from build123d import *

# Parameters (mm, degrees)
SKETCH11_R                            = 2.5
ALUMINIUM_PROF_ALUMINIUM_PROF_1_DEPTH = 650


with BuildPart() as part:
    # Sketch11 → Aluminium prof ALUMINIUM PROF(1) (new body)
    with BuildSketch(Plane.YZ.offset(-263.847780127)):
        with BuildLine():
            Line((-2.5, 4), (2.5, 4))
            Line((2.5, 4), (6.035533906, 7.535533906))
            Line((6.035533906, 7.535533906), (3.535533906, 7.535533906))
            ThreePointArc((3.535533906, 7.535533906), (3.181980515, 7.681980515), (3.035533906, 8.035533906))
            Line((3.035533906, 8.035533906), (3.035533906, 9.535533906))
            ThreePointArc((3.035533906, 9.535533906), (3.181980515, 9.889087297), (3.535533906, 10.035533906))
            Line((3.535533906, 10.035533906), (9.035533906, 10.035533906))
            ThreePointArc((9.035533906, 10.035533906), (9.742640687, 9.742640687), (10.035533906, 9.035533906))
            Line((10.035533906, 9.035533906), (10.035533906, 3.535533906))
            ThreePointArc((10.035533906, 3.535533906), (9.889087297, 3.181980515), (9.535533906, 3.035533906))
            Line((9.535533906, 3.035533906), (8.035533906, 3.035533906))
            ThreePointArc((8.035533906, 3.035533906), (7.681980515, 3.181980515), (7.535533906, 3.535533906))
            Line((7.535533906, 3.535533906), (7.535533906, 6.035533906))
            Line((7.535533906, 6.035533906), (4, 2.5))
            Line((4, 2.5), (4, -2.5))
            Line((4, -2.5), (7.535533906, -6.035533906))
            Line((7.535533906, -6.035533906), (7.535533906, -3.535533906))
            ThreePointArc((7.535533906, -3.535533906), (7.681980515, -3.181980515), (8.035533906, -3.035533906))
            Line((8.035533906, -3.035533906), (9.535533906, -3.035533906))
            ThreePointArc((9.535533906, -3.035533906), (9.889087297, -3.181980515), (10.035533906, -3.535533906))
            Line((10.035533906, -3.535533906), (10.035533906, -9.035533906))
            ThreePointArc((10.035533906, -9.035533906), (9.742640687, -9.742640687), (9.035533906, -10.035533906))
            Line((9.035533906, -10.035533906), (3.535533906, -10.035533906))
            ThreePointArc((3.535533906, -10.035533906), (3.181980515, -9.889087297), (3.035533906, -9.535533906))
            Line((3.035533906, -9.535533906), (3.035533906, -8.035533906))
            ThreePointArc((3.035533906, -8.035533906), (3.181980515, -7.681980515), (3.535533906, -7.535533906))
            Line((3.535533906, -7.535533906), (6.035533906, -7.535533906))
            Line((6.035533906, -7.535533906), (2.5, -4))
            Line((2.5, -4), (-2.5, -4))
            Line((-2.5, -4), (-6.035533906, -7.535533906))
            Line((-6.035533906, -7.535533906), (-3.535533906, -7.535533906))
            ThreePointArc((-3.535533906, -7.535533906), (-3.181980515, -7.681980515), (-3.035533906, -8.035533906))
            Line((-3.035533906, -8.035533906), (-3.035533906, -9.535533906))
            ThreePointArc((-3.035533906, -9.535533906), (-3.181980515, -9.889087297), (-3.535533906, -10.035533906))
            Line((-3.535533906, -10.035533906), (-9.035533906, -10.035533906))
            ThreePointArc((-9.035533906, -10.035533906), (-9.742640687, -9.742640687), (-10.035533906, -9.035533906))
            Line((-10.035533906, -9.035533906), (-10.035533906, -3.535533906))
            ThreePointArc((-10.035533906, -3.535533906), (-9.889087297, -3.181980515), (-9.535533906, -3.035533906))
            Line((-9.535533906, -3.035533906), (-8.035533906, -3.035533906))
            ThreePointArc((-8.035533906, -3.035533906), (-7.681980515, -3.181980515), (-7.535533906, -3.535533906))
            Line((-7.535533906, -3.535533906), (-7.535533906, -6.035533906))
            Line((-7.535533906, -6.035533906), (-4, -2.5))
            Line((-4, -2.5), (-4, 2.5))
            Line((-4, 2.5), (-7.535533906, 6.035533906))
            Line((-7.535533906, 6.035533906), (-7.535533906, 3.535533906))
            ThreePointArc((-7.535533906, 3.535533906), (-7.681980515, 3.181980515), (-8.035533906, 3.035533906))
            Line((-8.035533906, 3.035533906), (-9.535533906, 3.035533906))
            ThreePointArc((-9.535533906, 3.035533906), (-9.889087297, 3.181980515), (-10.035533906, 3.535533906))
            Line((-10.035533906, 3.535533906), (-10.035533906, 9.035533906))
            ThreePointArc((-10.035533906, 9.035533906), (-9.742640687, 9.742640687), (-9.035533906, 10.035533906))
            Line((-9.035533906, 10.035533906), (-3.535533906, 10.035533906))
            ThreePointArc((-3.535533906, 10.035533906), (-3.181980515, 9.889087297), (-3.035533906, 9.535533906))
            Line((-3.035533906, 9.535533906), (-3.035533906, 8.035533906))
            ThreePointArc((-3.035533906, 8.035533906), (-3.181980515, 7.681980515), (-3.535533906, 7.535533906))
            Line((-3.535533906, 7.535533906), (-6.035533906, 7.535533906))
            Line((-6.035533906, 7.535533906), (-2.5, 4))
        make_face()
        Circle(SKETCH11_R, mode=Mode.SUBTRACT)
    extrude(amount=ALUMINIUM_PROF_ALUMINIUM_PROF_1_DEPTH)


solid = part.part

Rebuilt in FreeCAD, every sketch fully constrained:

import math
import FreeCAD as App
import Part
import Sketcher

V = App.Vector

doc = App.newDocument("Part")
body = doc.addObject("PartDesign::Body", "Body")

# Sketch on YZ plane
sketch1 = body.newObject("Sketcher::SketchObject", "Sketch")
sketch1.AttachmentSupport = (doc.getObject("YZ_Plane"), [""])
sketch1.MapMode = "FlatFace"
sketch1.AttachmentOffset = App.Placement(V(0, 0, -263.84778), App.Rotation())
sketch1.addGeometry(Part.LineSegment(V(2.5, 4, 0), V(-2.5, 4, 0)), False)
sketch1.addGeometry(Part.LineSegment(V(-2.5, 4, 0), V(-6.035534, 7.535534, 0)), False)
sketch1.addGeometry(Part.LineSegment(V(-6.035534, 7.535534, 0), V(-3.535534, 7.535534, 0)), False)
sketch1.addGeometry(Part.ArcOfCircle(Part.Circle(V(-3.535534, 8.035534, 0), V(0, 0, 1), 0.5), math.radians(-90), math.radians(0)), False)
sketch1.addGeometry(Part.LineSegment(V(-3.035534, 8.035534, 0), V(-3.035534, 9.535534, 0)), False)
sketch1.addGeometry(Part.ArcOfCircle(Part.Circle(V(-3.535534, 9.535534, 0), V(0, 0, 1), 0.5), math.radians(0), math.radians(90)), False)
sketch1.addGeometry(Part.LineSegment(V(-3.535534, 10.035534, 0), V(-9.035534, 10.035534, 0)), False)
sketch1.addGeometry(Part.ArcOfCircle(Part.Circle(V(-9.035534, 9.035534, 0), V(0, 0, 1), 1), math.radians(90), math.radians(180)), False)
sketch1.addGeometry(Part.LineSegment(V(-10.035534, 9.035534, 0), V(-10.035534, 3.535534, 0)), False)
sketch1.addGeometry(Part.ArcOfCircle(Part.Circle(V(-9.535534, 3.535534, 0), V(0, 0, 1), 0.5), math.radians(180), math.radians(270)), False)
sketch1.addGeometry(Part.LineSegment(V(-9.535534, 3.035534, 0), V(-8.035534, 3.035534, 0)), False)
sketch1.addGeometry(Part.ArcOfCircle(Part.Circle(V(-8.035534, 3.535534, 0), V(0, 0, 1), 0.5), math.radians(-90), math.radians(0)), False)
sketch1.addGeometry(Part.LineSegment(V(-7.535534, 3.535534, 0), V(-7.535534, 6.035534, 0)), False)
sketch1.addGeometry(Part.LineSegment(V(-7.535534, 6.035534, 0), V(-4, 2.5, 0)), False)
sketch1.addGeometry(Part.LineSegment(V(-4, 2.5, 0), V(-4, -2.5, 0)), False)
sketch1.addGeometry(Part.LineSegment(V(-4, -2.5, 0), V(-7.535534, -6.035534, 0)), False)
sketch1.addGeometry(Part.LineSegment(V(-7.535534, -6.035534, 0), V(-7.535534, -3.535534, 0)), False)
sketch1.addGeometry(Part.ArcOfCircle(Part.Circle(V(-8.035534, -3.535534, 0), V(0, 0, 1), 0.5), math.radians(0), math.radians(90)), False)
sketch1.addGeometry(Part.LineSegment(V(-8.035534, -3.035534, 0), V(-9.535534, -3.035534, 0)), False)
sketch1.addGeometry(Part.ArcOfCircle(Part.Circle(V(-9.535534, -3.535534, 0), V(0, 0, 1), 0.5), math.radians(90), math.radians(180)), False)
sketch1.addGeometry(Part.LineSegment(V(-10.035534, -3.535534, 0), V(-10.035534, -9.035534, 0)), False)
sketch1.addGeometry(Part.ArcOfCircle(Part.Circle(V(-9.035534, -9.035534, 0), V(0, 0, 1), 1), math.radians(-180), math.radians(-90)), False)
sketch1.addGeometry(Part.LineSegment(V(-9.035534, -10.035534, 0), V(-3.535534, -10.035534, 0)), False)
sketch1.addGeometry(Part.ArcOfCircle(Part.Circle(V(-3.535534, -9.535534, 0), V(0, 0, 1), 0.5), math.radians(-90), math.radians(0)), False)
sketch1.addGeometry(Part.LineSegment(V(-3.035534, -9.535534, 0), V(-3.035534, -8.035534, 0)), False)
sketch1.addGeometry(Part.ArcOfCircle(Part.Circle(V(-3.535534, -8.035534, 0), V(0, 0, 1), 0.5), math.radians(0), math.radians(90)), False)
sketch1.addGeometry(Part.LineSegment(V(-3.535534, -7.535534, 0), V(-6.035534, -7.535534, 0)), False)
sketch1.addGeometry(Part.LineSegment(V(-6.035534, -7.535534, 0), V(-2.5, -4, 0)), False)
sketch1.addGeometry(Part.LineSegment(V(-2.5, -4, 0), V(2.5, -4, 0)), False)
sketch1.addGeometry(Part.LineSegment(V(2.5, -4, 0), V(6.035534, -7.535534, 0)), False)
sketch1.addGeometry(Part.LineSegment(V(6.035534, -7.535534, 0), V(3.535534, -7.535534, 0)), False)
sketch1.addGeometry(Part.ArcOfCircle(Part.Circle(V(3.535534, -8.035534, 0), V(0, 0, 1), 0.5), math.radians(90), math.radians(180)), False)
sketch1.addGeometry(Part.LineSegment(V(3.035534, -8.035534, 0), V(3.035534, -9.535534, 0)), False)
sketch1.addGeometry(Part.ArcOfCircle(Part.Circle(V(3.535534, -9.535534, 0), V(0, 0, 1), 0.5), math.radians(180), math.radians(270)), False)
sketch1.addGeometry(Part.LineSegment(V(3.535534, -10.035534, 0), V(9.035534, -10.035534, 0)), False)
sketch1.addGeometry(Part.ArcOfCircle(Part.Circle(V(9.035534, -9.035534, 0), V(0, 0, 1), 1), math.radians(-90), math.radians(0)), False)
sketch1.addGeometry(Part.LineSegment(V(10.035534, -9.035534, 0), V(10.035534, -3.535534, 0)), False)
sketch1.addGeometry(Part.ArcOfCircle(Part.Circle(V(9.535534, -3.535534, 0), V(0, 0, 1), 0.5), math.radians(0), math.radians(90)), False)
sketch1.addGeometry(Part.LineSegment(V(9.535534, -3.035534, 0), V(8.035534, -3.035534, 0)), False)
sketch1.addGeometry(Part.ArcOfCircle(Part.Circle(V(8.035534, -3.535534, 0), V(0, 0, 1), 0.5), math.radians(90), math.radians(180)), False)
sketch1.addGeometry(Part.LineSegment(V(7.535534, -3.535534, 0), V(7.535534, -6.035534, 0)), False)
sketch1.addGeometry(Part.LineSegment(V(7.535534, -6.035534, 0), V(4, -2.5, 0)), False)
sketch1.addGeometry(Part.LineSegment(V(4, -2.5, 0), V(4, 2.5, 0)), False)
sketch1.addGeometry(Part.LineSegment(V(4, 2.5, 0), V(7.535534, 6.035534, 0)), False)
sketch1.addGeometry(Part.LineSegment(V(7.535534, 6.035534, 0), V(7.535534, 3.535534, 0)), False)
sketch1.addGeometry(Part.ArcOfCircle(Part.Circle(V(8.035534, 3.535534, 0), V(0, 0, 1), 0.5), math.radians(180), math.radians(270)), False)
sketch1.addGeometry(Part.LineSegment(V(8.035534, 3.035534, 0), V(9.535534, 3.035534, 0)), False)
sketch1.addGeometry(Part.ArcOfCircle(Part.Circle(V(9.535534, 3.535534, 0), V(0, 0, 1), 0.5), math.radians(-90), math.radians(0)), False)
sketch1.addGeometry(Part.LineSegment(V(10.035534, 3.535534, 0), V(10.035534, 9.035534, 0)), False)
sketch1.addGeometry(Part.ArcOfCircle(Part.Circle(V(9.035534, 9.035534, 0), V(0, 0, 1), 1), math.radians(0), math.radians(90)), False)
sketch1.addGeometry(Part.LineSegment(V(9.035534, 10.035534, 0), V(3.535534, 10.035534, 0)), False)
sketch1.addGeometry(Part.ArcOfCircle(Part.Circle(V(3.535534, 9.535534, 0), V(0, 0, 1), 0.5), math.radians(90), math.radians(180)), False)
sketch1.addGeometry(Part.LineSegment(V(3.035534, 9.535534, 0), V(3.035534, 8.035534, 0)), False)
sketch1.addGeometry(Part.ArcOfCircle(Part.Circle(V(3.535534, 8.035534, 0), V(0, 0, 1), 0.5), math.radians(180), math.radians(270)), False)
sketch1.addGeometry(Part.LineSegment(V(3.535534, 7.535534, 0), V(6.035534, 7.535534, 0)), False)
sketch1.addGeometry(Part.LineSegment(V(6.035534, 7.535534, 0), V(2.5, 4, 0)), False)
sketch1.addGeometry(Part.Circle(V(0, 0, 0), V(0, 0, 1), 2.5), False)
sketch1.addConstraint(Sketcher.Constraint("Coincident", 0, 2, 1, 1))
sketch1.addConstraint(Sketcher.Constraint("Coincident", 1, 2, 2, 1))
sketch1.addConstraint(Sketcher.Constraint("Tangent", 2, 2, 3, 1))
sketch1.addConstraint(Sketcher.Constraint("Tangent", 3, 2, 4, 1))
sketch1.addConstraint(Sketcher.Constraint("Tangent", 4, 2, 5, 1))
sketch1.addConstraint(Sketcher.Constraint("Tangent", 5, 2, 6, 1))
sketch1.addConstraint(Sketcher.Constraint("Tangent", 6, 2, 7, 1))
sketch1.addConstraint(Sketcher.Constraint("Tangent", 7, 2, 8, 1))
sketch1.addConstraint(Sketcher.Constraint("Tangent", 8, 2, 9, 1))
sketch1.addConstraint(Sketcher.Constraint("Tangent", 9, 2, 10, 1))
sketch1.addConstraint(Sketcher.Constraint("Tangent", 10, 2, 11, 1))
sketch1.addConstraint(Sketcher.Constraint("Tangent", 11, 2, 12, 1))
sketch1.addConstraint(Sketcher.Constraint("Coincident", 12, 2, 13, 1))
sketch1.addConstraint(Sketcher.Constraint("Coincident", 13, 2, 14, 1))
sketch1.addConstraint(Sketcher.Constraint("Coincident", 14, 2, 15, 1))
sketch1.addConstraint(Sketcher.Constraint("Coincident", 15, 2, 16, 1))
sketch1.addConstraint(Sketcher.Constraint("Tangent", 16, 2, 17, 1))
sketch1.addConstraint(Sketcher.Constraint("Tangent", 17, 2, 18, 1))
sketch1.addConstraint(Sketcher.Constraint("Tangent", 18, 2, 19, 1))
sketch1.addConstraint(Sketcher.Constraint("Tangent", 19, 2, 20, 1))
sketch1.addConstraint(Sketcher.Constraint("Tangent", 20, 2, 21, 1))
sketch1.addConstraint(Sketcher.Constraint("Tangent", 21, 2, 22, 1))
sketch1.addConstraint(Sketcher.Constraint("Tangent", 22, 2, 23, 1))
sketch1.addConstraint(Sketcher.Constraint("Tangent", 23, 2, 24, 1))
sketch1.addConstraint(Sketcher.Constraint("Tangent", 24, 2, 25, 1))
sketch1.addConstraint(Sketcher.Constraint("Tangent", 25, 2, 26, 1))
sketch1.addConstraint(Sketcher.Constraint("Coincident", 26, 2, 27, 1))
sketch1.addConstraint(Sketcher.Constraint("Coincident", 27, 2, 28, 1))
sketch1.addConstraint(Sketcher.Constraint("Coincident", 28, 2, 29, 1))
sketch1.addConstraint(Sketcher.Constraint("Coincident", 29, 2, 30, 1))
sketch1.addConstraint(Sketcher.Constraint("Tangent", 30, 2, 31, 1))
sketch1.addConstraint(Sketcher.Constraint("Tangent", 31, 2, 32, 1))
sketch1.addConstraint(Sketcher.Constraint("Tangent", 32, 2, 33, 1))
sketch1.addConstraint(Sketcher.Constraint("Tangent", 33, 2, 34, 1))
sketch1.addConstraint(Sketcher.Constraint("Tangent", 34, 2, 35, 1))
sketch1.addConstraint(Sketcher.Constraint("Tangent", 35, 2, 36, 1))
sketch1.addConstraint(Sketcher.Constraint("Tangent", 36, 2, 37, 1))
sketch1.addConstraint(Sketcher.Constraint("Tangent", 37, 2, 38, 1))
sketch1.addConstraint(Sketcher.Constraint("Tangent", 38, 2, 39, 1))
sketch1.addConstraint(Sketcher.Constraint("Tangent", 39, 2, 40, 1))
sketch1.addConstraint(Sketcher.Constraint("Coincident", 40, 2, 41, 1))
sketch1.addConstraint(Sketcher.Constraint("Coincident", 41, 2, 42, 1))
sketch1.addConstraint(Sketcher.Constraint("Coincident", 42, 2, 43, 1))
sketch1.addConstraint(Sketcher.Constraint("Coincident", 43, 2, 44, 1))
sketch1.addConstraint(Sketcher.Constraint("Tangent", 44, 2, 45, 1))
sketch1.addConstraint(Sketcher.Constraint("Tangent", 45, 2, 46, 1))
sketch1.addConstraint(Sketcher.Constraint("Tangent", 46, 2, 47, 1))
sketch1.addConstraint(Sketcher.Constraint("Tangent", 47, 2, 48, 1))
sketch1.addConstraint(Sketcher.Constraint("Tangent", 48, 2, 49, 1))
sketch1.addConstraint(Sketcher.Constraint("Tangent", 49, 2, 50, 1))
sketch1.addConstraint(Sketcher.Constraint("Tangent", 50, 2, 51, 1))
sketch1.addConstraint(Sketcher.Constraint("Tangent", 51, 2, 52, 1))
sketch1.addConstraint(Sketcher.Constraint("Tangent", 52, 2, 53, 1))
sketch1.addConstraint(Sketcher.Constraint("Tangent", 53, 2, 54, 1))
sketch1.addConstraint(Sketcher.Constraint("Coincident", 54, 2, 55, 1))
sketch1.addConstraint(Sketcher.Constraint("Coincident", 55, 2, 0, 1))
sketch1.addConstraint(Sketcher.Constraint("Horizontal", 0))
sketch1.addConstraint(Sketcher.Constraint("Horizontal", 2))
sketch1.addConstraint(Sketcher.Constraint("Vertical", 4))
sketch1.addConstraint(Sketcher.Constraint("Horizontal", 6))
sketch1.addConstraint(Sketcher.Constraint("Vertical", 8))
sketch1.addConstraint(Sketcher.Constraint("Horizontal", 10))
sketch1.addConstraint(Sketcher.Constraint("Vertical", 12))
sketch1.addConstraint(Sketcher.Constraint("Vertical", 14))
sketch1.addConstraint(Sketcher.Constraint("Vertical", 16))
sketch1.addConstraint(Sketcher.Constraint("Horizontal", 18))
sketch1.addConstraint(Sketcher.Constraint("Vertical", 20))
sketch1.addConstraint(Sketcher.Constraint("Horizontal", 22))
sketch1.addConstraint(Sketcher.Constraint("Vertical", 24))
sketch1.addConstraint(Sketcher.Constraint("Horizontal", 26))
sketch1.addConstraint(Sketcher.Constraint("Horizontal", 28))
sketch1.addConstraint(Sketcher.Constraint("Horizontal", 30))
sketch1.addConstraint(Sketcher.Constraint("Vertical", 32))
sketch1.addConstraint(Sketcher.Constraint("Horizontal", 34))
sketch1.addConstraint(Sketcher.Constraint("Vertical", 36))
sketch1.addConstraint(Sketcher.Constraint("Horizontal", 38))
sketch1.addConstraint(Sketcher.Constraint("Vertical", 40))
sketch1.addConstraint(Sketcher.Constraint("Vertical", 42))
sketch1.addConstraint(Sketcher.Constraint("Vertical", 44))
sketch1.addConstraint(Sketcher.Constraint("Horizontal", 46))
sketch1.addConstraint(Sketcher.Constraint("Vertical", 48))
sketch1.addConstraint(Sketcher.Constraint("Horizontal", 50))
sketch1.addConstraint(Sketcher.Constraint("Vertical", 52))
sketch1.addConstraint(Sketcher.Constraint("Horizontal", 54))
sketch1.addConstraint(Sketcher.Constraint("Coincident", 56, 3, -1, 1))
sketch1.addConstraint(Sketcher.Constraint("Equal", 3, 5))
sketch1.addConstraint(Sketcher.Constraint("Equal", 5, 9))
sketch1.addConstraint(Sketcher.Constraint("Equal", 9, 11))
sketch1.addConstraint(Sketcher.Constraint("Equal", 11, 17))
sketch1.addConstraint(Sketcher.Constraint("Equal", 17, 19))
sketch1.addConstraint(Sketcher.Constraint("Equal", 7, 21))
sketch1.addConstraint(Sketcher.Constraint("Equal", 19, 23))
sketch1.addConstraint(Sketcher.Constraint("Equal", 23, 25))
sketch1.addConstraint(Sketcher.Constraint("Equal", 25, 31))
sketch1.addConstraint(Sketcher.Constraint("Equal", 31, 33))
sketch1.addConstraint(Sketcher.Constraint("Equal", 21, 35))
sketch1.addConstraint(Sketcher.Constraint("Equal", 33, 37))
sketch1.addConstraint(Sketcher.Constraint("Equal", 37, 39))
sketch1.addConstraint(Sketcher.Constraint("Equal", 39, 45))
sketch1.addConstraint(Sketcher.Constraint("Equal", 45, 47))
sketch1.addConstraint(Sketcher.Constraint("Equal", 35, 49))
sketch1.addConstraint(Sketcher.Constraint("Equal", 47, 51))
sketch1.addConstraint(Sketcher.Constraint("Equal", 51, 53))
sketch1.addConstraint(Sketcher.Constraint("Symmetric", 3, 3, 31, 3, -1, 1))
sketch1.addConstraint(Sketcher.Constraint("Symmetric", 7, 3, 35, 3, -1, 1))
sketch1.addConstraint(Sketcher.Constraint("Symmetric", 11, 3, 39, 3, -1, 1))
sketch1.addConstraint(Sketcher.Constraint("Symmetric", 17, 3, 45, 3, -1, 1))
sketch1.addConstraint(Sketcher.Constraint("Symmetric", 21, 3, 49, 3, -1, 1))
sketch1.addConstraint(Sketcher.Constraint("Symmetric", 25, 3, 53, 3, -1, 1))
sketch1.addConstraint(Sketcher.Constraint("Symmetric", 0, 2, 28, 2, -1, 1))
sketch1.addConstraint(Sketcher.Constraint("Symmetric", 13, 2, 41, 2, -1, 1))
sketch1.addConstraint(Sketcher.Constraint("Symmetric", 25, 3, 31, 3, -2))
sketch1.addConstraint(Sketcher.Constraint("Symmetric", 21, 3, 35, 3, -2))
sketch1.addConstraint(Sketcher.Constraint("Symmetric", 17, 3, 39, 3, -2))
sketch1.addConstraint(Sketcher.Constraint("Parallel", 1, 13))
sketch1.addConstraint(Sketcher.Constraint("Perpendicular", 13, 15))
sketch1.addConstraint(Sketcher.Constraint("Parallel", 15, 27))
sketch1.addConstraint(Sketcher.Constraint("Perpendicular", 27, 29))
sketch1.addConstraint(Sketcher.Constraint("Parallel", 29, 41))
sketch1.addConstraint(Sketcher.Constraint("Perpendicular", 41, 43))
sketch1.addConstraint(Sketcher.Constraint("Parallel", 43, 55))
sketch1.addConstraint(Sketcher.Constraint("Horizontal", 15, 2, 40, 2))
sketch1.addConstraint(Sketcher.Constraint("Horizontal", 14, 2, 41, 2))
sketch1.addConstraint(Sketcher.Constraint("Horizontal", 13, 2, 42, 2))
sketch1.addConstraint(Sketcher.Constraint("Vertical", 1, 2, 26, 2))
sketch1.addConstraint(Sketcher.Constraint("Vertical", 29, 2, 54, 2))
sketch1.addConstraint(Sketcher.Constraint("Equal", 46, 4))
sketch1.addConstraint(Sketcher.Constraint("Equal", 50, 8))
sketch1.addConstraint(Sketcher.Constraint("Equal", 54, 12))
sketch1.addConstraint(Sketcher.Constraint("Equal", 28, 14))
sketch1.addConstraint(Sketcher.Constraint("Equal", 1, 13))
sketch1.addConstraint(Sketcher.Constraint("Diameter", 56, 5.0))
sketch1.addConstraint(Sketcher.Constraint("Radius", 7, 1.0))
sketch1.addConstraint(Sketcher.Constraint("Radius", 3, 0.5))
sketch1.addConstraint(Sketcher.Constraint("DistanceX", 0, 2, 0, 1, 5.0))
sketch1.addConstraint(Sketcher.Constraint("Distance", 1, 5.0))
sketch1.addConstraint(Sketcher.Constraint("DistanceX", 2, 1, 2, 2, 2.5))
sketch1.addConstraint(Sketcher.Constraint("DistanceX", 6, 2, 6, 1, 5.5))
sketch1.addConstraint(Sketcher.Constraint("DistanceX", 10, 1, 10, 2, 1.5))
pad1 = body.newObject("PartDesign::Pad", "Pad")
pad1.Profile = sketch1
pad1.Length = 650

doc.recompute()
